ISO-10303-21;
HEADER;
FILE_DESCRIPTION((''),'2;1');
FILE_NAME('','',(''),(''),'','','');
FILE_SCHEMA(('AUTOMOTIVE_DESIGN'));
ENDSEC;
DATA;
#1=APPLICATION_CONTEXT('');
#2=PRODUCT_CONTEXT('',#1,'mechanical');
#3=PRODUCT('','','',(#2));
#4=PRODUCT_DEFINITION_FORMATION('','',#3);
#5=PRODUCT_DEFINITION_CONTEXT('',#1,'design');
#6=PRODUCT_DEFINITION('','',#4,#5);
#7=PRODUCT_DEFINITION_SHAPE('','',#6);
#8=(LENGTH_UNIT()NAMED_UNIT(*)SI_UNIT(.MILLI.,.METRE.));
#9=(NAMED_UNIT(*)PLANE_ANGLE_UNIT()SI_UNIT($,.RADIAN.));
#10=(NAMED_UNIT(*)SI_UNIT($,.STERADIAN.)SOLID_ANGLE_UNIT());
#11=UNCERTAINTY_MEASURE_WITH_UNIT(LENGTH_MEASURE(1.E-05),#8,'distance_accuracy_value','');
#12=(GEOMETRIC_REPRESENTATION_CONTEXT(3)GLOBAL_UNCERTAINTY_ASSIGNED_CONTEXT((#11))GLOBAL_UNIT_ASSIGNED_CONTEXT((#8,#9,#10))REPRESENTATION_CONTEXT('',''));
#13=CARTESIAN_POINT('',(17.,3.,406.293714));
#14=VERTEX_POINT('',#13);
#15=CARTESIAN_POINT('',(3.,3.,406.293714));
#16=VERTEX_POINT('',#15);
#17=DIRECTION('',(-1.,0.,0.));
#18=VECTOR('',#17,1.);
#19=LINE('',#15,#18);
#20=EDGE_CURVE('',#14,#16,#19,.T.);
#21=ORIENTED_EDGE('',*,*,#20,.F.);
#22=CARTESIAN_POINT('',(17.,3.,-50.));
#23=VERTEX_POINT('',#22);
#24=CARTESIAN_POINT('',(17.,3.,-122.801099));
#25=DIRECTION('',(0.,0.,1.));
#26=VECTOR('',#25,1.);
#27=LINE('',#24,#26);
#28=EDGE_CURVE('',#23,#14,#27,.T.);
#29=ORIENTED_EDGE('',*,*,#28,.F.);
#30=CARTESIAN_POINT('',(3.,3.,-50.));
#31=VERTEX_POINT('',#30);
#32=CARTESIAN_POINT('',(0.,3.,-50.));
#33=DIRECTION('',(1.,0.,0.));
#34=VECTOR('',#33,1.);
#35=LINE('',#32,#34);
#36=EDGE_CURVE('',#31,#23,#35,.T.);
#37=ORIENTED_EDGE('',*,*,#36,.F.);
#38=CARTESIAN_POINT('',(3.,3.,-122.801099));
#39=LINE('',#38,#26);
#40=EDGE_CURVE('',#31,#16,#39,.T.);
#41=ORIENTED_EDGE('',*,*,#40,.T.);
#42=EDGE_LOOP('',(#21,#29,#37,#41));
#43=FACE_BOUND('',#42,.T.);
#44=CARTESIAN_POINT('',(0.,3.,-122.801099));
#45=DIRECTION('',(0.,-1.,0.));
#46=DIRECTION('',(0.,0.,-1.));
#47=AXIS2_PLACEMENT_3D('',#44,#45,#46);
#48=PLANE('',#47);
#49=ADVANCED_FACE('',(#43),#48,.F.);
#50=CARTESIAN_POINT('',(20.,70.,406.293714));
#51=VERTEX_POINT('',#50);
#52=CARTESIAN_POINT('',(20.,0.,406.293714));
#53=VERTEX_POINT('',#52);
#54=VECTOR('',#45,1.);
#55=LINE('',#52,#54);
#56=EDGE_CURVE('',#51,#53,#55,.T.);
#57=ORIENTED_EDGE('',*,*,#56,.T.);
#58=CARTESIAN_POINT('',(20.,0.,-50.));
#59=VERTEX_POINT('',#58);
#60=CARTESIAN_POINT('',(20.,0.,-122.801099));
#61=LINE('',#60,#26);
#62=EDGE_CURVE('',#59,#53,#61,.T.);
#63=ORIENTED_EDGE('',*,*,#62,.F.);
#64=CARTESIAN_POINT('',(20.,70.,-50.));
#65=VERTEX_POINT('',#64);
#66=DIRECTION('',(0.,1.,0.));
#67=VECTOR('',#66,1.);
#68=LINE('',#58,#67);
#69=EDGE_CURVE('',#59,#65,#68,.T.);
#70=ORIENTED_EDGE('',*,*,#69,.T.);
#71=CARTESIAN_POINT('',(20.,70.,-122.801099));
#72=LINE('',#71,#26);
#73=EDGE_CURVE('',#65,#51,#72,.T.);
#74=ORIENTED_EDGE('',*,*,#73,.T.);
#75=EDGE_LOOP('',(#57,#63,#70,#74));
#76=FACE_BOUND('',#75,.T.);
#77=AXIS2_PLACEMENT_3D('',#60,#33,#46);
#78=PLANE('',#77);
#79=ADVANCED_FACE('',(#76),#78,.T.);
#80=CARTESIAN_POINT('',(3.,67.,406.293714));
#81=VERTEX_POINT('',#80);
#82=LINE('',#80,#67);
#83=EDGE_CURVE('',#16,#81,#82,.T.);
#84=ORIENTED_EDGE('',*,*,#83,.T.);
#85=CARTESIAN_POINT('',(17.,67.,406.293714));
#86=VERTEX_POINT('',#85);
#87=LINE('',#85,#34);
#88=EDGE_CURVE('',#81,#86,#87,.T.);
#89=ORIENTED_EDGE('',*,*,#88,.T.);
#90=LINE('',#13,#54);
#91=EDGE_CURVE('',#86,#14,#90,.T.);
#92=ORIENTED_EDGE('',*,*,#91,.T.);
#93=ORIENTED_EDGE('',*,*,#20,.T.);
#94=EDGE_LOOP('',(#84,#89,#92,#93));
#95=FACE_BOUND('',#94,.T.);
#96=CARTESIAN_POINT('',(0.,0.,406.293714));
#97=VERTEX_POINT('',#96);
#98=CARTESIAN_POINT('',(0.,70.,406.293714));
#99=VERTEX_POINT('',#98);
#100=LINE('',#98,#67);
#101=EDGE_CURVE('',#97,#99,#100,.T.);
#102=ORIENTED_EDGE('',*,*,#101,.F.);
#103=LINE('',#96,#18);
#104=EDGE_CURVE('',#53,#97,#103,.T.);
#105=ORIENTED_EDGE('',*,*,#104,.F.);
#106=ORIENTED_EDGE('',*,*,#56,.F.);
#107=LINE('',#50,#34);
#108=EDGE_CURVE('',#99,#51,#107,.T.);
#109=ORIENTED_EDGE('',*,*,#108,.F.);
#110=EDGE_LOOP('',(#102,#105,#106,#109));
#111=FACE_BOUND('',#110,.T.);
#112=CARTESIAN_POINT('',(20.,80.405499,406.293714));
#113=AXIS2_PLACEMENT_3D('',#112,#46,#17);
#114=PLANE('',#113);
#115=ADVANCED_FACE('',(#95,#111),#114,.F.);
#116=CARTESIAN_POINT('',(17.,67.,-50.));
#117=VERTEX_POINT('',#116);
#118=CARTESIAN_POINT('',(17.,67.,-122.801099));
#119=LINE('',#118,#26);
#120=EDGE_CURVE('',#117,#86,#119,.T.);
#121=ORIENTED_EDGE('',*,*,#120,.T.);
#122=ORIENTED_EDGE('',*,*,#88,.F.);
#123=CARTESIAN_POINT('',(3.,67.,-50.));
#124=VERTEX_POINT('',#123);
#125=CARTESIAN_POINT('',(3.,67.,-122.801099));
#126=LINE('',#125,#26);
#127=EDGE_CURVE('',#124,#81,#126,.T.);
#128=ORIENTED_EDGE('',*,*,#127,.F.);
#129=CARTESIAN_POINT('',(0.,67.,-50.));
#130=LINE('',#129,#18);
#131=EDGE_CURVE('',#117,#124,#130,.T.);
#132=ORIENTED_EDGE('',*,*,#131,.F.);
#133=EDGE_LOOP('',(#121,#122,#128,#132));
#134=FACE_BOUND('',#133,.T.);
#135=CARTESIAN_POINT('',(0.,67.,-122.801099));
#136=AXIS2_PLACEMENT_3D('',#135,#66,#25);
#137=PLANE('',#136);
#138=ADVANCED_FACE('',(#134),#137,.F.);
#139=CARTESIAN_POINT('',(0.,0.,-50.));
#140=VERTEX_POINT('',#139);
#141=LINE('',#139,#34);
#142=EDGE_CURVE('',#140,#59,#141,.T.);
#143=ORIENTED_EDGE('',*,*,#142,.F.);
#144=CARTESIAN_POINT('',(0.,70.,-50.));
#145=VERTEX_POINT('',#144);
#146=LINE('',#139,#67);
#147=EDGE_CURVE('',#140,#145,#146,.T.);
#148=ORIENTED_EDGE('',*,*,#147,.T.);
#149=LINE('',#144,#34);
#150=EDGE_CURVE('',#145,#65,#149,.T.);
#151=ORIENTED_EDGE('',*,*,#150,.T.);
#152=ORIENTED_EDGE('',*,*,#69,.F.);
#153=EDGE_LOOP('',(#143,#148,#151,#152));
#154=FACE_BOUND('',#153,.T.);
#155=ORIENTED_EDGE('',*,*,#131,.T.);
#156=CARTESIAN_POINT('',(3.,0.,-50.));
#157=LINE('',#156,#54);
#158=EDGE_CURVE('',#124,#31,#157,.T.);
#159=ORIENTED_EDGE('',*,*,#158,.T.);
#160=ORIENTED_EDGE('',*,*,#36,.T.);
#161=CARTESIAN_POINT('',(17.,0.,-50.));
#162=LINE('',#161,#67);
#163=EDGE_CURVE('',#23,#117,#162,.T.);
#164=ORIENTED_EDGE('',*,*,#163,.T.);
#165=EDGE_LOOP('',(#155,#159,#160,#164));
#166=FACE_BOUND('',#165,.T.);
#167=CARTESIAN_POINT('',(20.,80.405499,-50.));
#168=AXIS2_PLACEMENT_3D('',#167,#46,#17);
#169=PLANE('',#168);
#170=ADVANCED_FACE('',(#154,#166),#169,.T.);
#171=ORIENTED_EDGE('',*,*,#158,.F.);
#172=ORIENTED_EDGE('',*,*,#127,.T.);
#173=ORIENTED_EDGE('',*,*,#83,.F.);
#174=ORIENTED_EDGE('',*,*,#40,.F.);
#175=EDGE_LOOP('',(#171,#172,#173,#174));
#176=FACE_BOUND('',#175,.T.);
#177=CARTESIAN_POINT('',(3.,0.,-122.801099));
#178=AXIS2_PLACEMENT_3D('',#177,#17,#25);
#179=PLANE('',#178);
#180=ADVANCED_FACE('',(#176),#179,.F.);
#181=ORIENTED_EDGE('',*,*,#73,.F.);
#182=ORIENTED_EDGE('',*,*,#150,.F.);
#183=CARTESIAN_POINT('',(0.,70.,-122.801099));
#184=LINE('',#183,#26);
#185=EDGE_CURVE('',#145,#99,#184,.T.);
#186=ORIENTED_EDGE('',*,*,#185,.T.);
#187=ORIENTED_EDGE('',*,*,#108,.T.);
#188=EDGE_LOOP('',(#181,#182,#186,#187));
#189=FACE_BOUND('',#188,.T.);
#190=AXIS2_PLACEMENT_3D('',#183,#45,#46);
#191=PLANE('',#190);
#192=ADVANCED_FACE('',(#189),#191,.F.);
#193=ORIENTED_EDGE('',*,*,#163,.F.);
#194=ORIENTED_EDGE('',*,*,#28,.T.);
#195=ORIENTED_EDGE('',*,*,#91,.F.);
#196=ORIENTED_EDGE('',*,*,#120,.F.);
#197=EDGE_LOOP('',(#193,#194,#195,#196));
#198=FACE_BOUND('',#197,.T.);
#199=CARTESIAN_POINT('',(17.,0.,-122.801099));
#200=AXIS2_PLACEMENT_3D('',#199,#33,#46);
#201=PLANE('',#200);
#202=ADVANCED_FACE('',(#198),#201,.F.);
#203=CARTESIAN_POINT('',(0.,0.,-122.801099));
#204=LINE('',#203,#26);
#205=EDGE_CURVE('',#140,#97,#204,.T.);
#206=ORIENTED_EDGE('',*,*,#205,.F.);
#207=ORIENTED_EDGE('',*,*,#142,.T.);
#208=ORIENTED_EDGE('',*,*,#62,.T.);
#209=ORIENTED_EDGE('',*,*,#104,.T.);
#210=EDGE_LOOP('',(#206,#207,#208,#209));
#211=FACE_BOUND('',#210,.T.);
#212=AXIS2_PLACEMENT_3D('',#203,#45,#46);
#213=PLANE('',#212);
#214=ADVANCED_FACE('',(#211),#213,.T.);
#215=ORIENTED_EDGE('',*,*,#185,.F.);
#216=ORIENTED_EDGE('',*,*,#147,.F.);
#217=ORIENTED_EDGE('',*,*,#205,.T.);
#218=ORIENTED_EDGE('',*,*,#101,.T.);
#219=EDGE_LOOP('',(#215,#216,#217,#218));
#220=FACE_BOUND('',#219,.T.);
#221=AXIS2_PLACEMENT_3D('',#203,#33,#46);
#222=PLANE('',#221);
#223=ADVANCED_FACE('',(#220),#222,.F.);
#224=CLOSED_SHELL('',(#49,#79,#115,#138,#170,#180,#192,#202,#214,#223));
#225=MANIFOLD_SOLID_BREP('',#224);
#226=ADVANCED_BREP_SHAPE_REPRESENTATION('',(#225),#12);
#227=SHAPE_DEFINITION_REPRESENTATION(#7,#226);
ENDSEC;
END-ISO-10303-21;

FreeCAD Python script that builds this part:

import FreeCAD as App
import Part
import Sketcher

V = App.Vector
Q = App.Units.Quantity


def add_polygon(sketch, points):
    """Adds a closed chain of lines whose ends are joined by coincident constraints."""
    first, n = sketch.GeometryCount, len(points)
    for a, b in zip(points, points[1:] + points[:1]):
        sketch.addGeometry(Part.LineSegment(App.Vector(*a, 0), App.Vector(*b, 0)), False)
    for i in range(n):
        sketch.addConstraint(Sketcher.Constraint("Coincident", first + i, 2, first + (i + 1) % n, 1))

doc = App.newDocument("Part")
body = doc.addObject("PartDesign::Body", "Body")

sketch1 = body.newObject("Sketcher::SketchObject", "Sketch")
sketch1.AttachmentSupport = (doc.getObject("XY_Plane"), [""])
sketch1.MapMode = "FlatFace"
add_polygon(sketch1, [(0, 0), (20, 0), (20, 70), (0, 70)])
add_polygon(sketch1, [(17, 67), (17, 3), (3, 3), (3, 67)])
sketch1.addConstraint(Sketcher.Constraint("Horizontal", 0))
sketch1.addConstraint(Sketcher.Constraint("Vertical", 1))
sketch1.addConstraint(Sketcher.Constraint("Horizontal", 2))
sketch1.addConstraint(Sketcher.Constraint("Vertical", 3))
sketch1.addConstraint(Sketcher.Constraint("Vertical", 4))
sketch1.addConstraint(Sketcher.Constraint("Horizontal", 5))
sketch1.addConstraint(Sketcher.Constraint("Vertical", 6))
sketch1.addConstraint(Sketcher.Constraint("Horizontal", 7))
sketch1.addConstraint(Sketcher.Constraint("Coincident", 3, 2, -1, 1))
sketch1.addConstraint(Sketcher.Constraint("DistanceX", 0, 1, 0, 2, Q("20 mm")))
sketch1.addConstraint(Sketcher.Constraint("DistanceX", 5, 2, 5, 1, Q("14 mm")))
sketch1.addConstraint(Sketcher.Constraint("DistanceY", 1, 1, 1, 2, Q("70 mm")))
sketch1.addConstraint(Sketcher.Constraint("DistanceY", 4, 2, 4, 1, Q("64 mm")))
sketch1.addConstraint(Sketcher.Constraint("DistanceX", -1, 1, 4, 2, Q("17 mm")))
sketch1.addConstraint(Sketcher.Constraint("DistanceY", -1, 1, 4, 2, Q("3 mm")))
pad1 = body.newObject("PartDesign::Pad", "Pad")
pad1.Profile = sketch1
pad1.Length = 50
pad1.Reversed = True

sketch2 = body.newObject("Sketcher::SketchObject", "Sketch001")
sketch2.AttachmentSupport = (doc.getObject("XY_Plane"), [""])
sketch2.MapMode = "FlatFace"
add_polygon(sketch2, [(0, 70), (0, 0), (20, 0), (20, 70)])
add_polygon(sketch2, [(17, 3), (3, 3), (3, 67), (17, 67)])
sketch2.addConstraint(Sketcher.Constraint("Vertical", 0))
sketch2.addConstraint(Sketcher.Constraint("Horizontal", 1))
sketch2.addConstraint(Sketcher.Constraint("Vertical", 2))
sketch2.addConstraint(Sketcher.Constraint("Horizontal", 3))
sketch2.addConstraint(Sketcher.Constraint("Horizontal", 4))
sketch2.addConstraint(Sketcher.Constraint("Vertical", 5))
sketch2.addConstraint(Sketcher.Constraint("Horizontal", 6))
sketch2.addConstraint(Sketcher.Constraint("Vertical", 7))
sketch2.addConstraint(Sketcher.Constraint("Coincident", 0, 2, -1, 1))
sketch2.addConstraint(Sketcher.Constraint("DistanceX", 1, 1, 1, 2, Q("20 mm")))
sketch2.addConstraint(Sketcher.Constraint("DistanceX", 4, 2, 4, 1, Q("14 mm")))
sketch2.addConstraint(Sketcher.Constraint("DistanceY", 0, 2, 0, 1, Q("70 mm")))
sketch2.addConstraint(Sketcher.Constraint("DistanceY", 5, 1, 5, 2, Q("64 mm")))
sketch2.addConstraint(Sketcher.Constraint("DistanceX", -1, 1, 4, 2, Q("3 mm")))
sketch2.addConstraint(Sketcher.Constraint("DistanceY", -1, 1, 4, 2, Q("3 mm")))
pad2 = body.newObject("PartDesign::Pad", "Pad001")
pad2.Profile = sketch2
pad2.Length = 406.293714

doc.recompute()
